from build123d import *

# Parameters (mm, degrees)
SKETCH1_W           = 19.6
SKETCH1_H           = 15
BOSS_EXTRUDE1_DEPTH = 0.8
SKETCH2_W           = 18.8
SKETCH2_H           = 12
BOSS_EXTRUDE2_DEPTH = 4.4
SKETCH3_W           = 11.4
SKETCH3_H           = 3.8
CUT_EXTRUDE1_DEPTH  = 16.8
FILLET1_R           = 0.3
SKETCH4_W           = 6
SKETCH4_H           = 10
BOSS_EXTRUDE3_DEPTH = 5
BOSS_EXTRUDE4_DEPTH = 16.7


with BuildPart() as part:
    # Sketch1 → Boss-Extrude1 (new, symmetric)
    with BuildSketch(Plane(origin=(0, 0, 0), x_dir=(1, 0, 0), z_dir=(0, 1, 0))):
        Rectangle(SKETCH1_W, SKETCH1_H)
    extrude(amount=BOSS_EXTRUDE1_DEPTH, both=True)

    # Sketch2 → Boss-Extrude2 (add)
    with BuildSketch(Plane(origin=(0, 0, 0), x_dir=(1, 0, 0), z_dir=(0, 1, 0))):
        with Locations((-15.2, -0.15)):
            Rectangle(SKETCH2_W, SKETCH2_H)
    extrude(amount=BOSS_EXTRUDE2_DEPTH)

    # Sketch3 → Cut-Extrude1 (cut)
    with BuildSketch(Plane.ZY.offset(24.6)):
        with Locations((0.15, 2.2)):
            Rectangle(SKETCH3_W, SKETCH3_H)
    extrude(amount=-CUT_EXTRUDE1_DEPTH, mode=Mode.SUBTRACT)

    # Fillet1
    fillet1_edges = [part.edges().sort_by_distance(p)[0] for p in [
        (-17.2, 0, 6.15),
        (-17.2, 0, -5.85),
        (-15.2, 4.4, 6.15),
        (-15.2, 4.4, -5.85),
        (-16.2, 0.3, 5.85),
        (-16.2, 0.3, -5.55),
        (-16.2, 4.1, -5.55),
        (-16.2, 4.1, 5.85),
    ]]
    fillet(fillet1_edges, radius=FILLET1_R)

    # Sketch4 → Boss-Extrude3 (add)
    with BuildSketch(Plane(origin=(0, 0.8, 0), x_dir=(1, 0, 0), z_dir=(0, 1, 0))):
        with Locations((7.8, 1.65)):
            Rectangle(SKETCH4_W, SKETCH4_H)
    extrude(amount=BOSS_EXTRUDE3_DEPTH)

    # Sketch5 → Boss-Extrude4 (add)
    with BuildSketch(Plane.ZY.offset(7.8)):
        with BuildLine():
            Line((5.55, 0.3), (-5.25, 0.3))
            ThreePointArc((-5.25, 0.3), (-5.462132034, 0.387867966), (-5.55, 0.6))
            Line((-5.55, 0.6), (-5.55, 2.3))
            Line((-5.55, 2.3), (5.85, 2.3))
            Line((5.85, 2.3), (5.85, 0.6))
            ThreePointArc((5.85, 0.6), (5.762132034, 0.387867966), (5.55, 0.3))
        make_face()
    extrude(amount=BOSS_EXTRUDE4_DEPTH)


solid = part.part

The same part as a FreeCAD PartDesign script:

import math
import FreeCAD as App
import Part
import Sketcher
from FreeCAD import Vector
Q = App.Units.Quantity


def edges_at(feature, points):
    """Names of the edges that pass closest to the given points."""
    edges = feature.Shape.Edges
    near = lambda p: min(range(len(edges)), key=lambda i: edges[i].distToShape(Part.Vertex(*p))[0])
    return sorted({f"Edge{near(p) + 1}" for p in points})


def add_polygon(sketch, points):
    """Adds a closed chain of lines whose ends are joined by coincident constraints."""
    first, n = sketch.GeometryCount, len(points)
    for a, b in zip(points, points[1:] + points[:1]):
        sketch.addGeometry(Part.LineSegment(App.Vector(*a, 0), App.Vector(*b, 0)), False)
    for i in range(n):
        sketch.addConstraint(Sketcher.Constraint("Coincident", first + i, 2, first + (i + 1) % n, 1))

doc = App.newDocument("Part")
body = doc.addObject("PartDesign::Body", "Body")

sketch1 = body.newObject("Sketcher::SketchObject", "Sketch")
sketch1.AttachmentSupport = (doc.getObject("XZ_Plane"), [""])
sketch1.MapMode = "FlatFace"
add_polygon(sketch1, [(-10, -8), (-10, 8), (10, 8), (10, -8)])
sketch1.addConstraint(Sketcher.Constraint("Vertical", 0))
sketch1.addConstraint(Sketcher.Constraint("Horizontal", 1))
sketch1.addConstraint(Sketcher.Constraint("Vertical", 2))
sketch1.addConstraint(Sketcher.Constraint("Horizontal", 3))
sketch1.addConstraint(Sketcher.Constraint("Symmetric", 0, 2, 2, 2, -1, 1))
sketch1.addConstraint(Sketcher.Constraint("DistanceY", 0, 1, 0, 2, Q("15 mm")))
sketch1.addConstraint(Sketcher.Constraint("DistanceX", 1, 1, 1, 2, Q("19.6 mm")))
pad1 = body.newObject("PartDesign::Pad", "Pad")
pad1.Profile = sketch1
pad1.Length = 1.6
pad1.Midplane = True

sketch2 = body.newObject("Sketcher::SketchObject", "Sketch001")
sketch2.AttachmentSupport = (doc.getObject("XZ_Plane"), [""])
sketch2.MapMode = "FlatFace"
add_polygon(sketch2, [(-25, -6), (-25, 6), (-6, 6), (-6, -6)])
sketch2.addConstraint(Sketcher.Constraint("Vertical", 0))
sketch2.addConstraint(Sketcher.Constraint("Horizontal", 1))
sketch2.addConstraint(Sketcher.Constraint("Vertical", 2))
sketch2.addConstraint(Sketcher.Constraint("Horizontal", 3))
sketch2.addConstraint(Sketcher.Constraint("DistanceY", 0, 1, 0, 2, Q("12 mm")))
sketch2.addConstraint(Sketcher.Constraint("DistanceX", 1, 1, 1, 2, Q("18.8 mm")))
sketch2.addConstraint(Sketcher.Constraint("DistanceX", 0, 2, -1, 1, Q("24.6 mm")))
sketch2.addConstraint(Sketcher.Constraint("DistanceY", -1, 1, 0, 2, Q("6.15 mm")))
pad2 = body.newObject("PartDesign::Pad", "Pad001")
pad2.Profile = sketch2
pad2.Length = 4.4
pad2.Reversed = True

sketch3 = body.newObject("Sketcher::SketchObject", "Sketch002")
sketch3.AttachmentSupport = (doc.getObject("YZ_Plane"), [""])
sketch3.MapMode = "FlatFace"
sketch3.AttachmentOffset = App.Placement(Vector(0, 0, -24.6), App.Rotation())
add_polygon(sketch3, [(4.1, -5.5), (0.3, -5.5), (0.3, 5.8), (4.1, 5.8)])
sketch3.addConstraint(Sketcher.Constraint("Horizontal", 0))
sketch3.addConstraint(Sketcher.Constraint("Vertical", 1))
sketch3.addConstraint(Sketcher.Constraint("Horizontal", 2))
sketch3.addConstraint(Sketcher.Constraint("Vertical", 3))
sketch3.addConstraint(Sketcher.Constraint("DistanceX", 0, 2, 0, 1, Q("3.8 mm")))
sketch3.addConstraint(Sketcher.Constraint("DistanceY", 1, 1, 1, 2, Q("11.4 mm")))
sketch3.addConstraint(Sketcher.Constraint("DistanceX", -1, 1, 0, 2, Q("0.3 mm")))
sketch3.addConstraint(Sketcher.Constraint("DistanceY", 0, 2, -1, 1, Q("5.55 mm")))
pocket1 = body.newObject("PartDesign::Pocket", "Pocket")
pocket1.Profile = sketch3
pocket1.Length = 16.8
pocket1.Reversed = True
doc.recompute()

fillet = body.newObject("PartDesign::Fillet", "Fillet")
fillet.Base = (pocket1, edges_at(pocket1, [
    (-17.2, 0, 6.15),
    (-17.2, 0, -5.85),
    (-15.2, 4.4, 6.15),
    (-15.2, 4.4, -5.85),
    (-16.2, 0.3, 5.85),
    (-16.2, 0.3, -5.55),
    (-16.2, 4.1, -5.55),
    (-16.2, 4.1, 5.85),
]))
fillet.Radius = 0.3

sketch4 = body.newObject("Sketcher::SketchObject", "Sketch003")
sketch4.AttachmentSupport = (doc.getObject("XZ_Plane"), [""])
sketch4.MapMode = "FlatFace"
sketch4.AttachmentOffset = App.Placement(Vector(0, 0, -0.8), App.Rotation())
add_polygon(sketch4, [(5, -7), (5, 3), (11, 3), (11, -7)])
sketch4.addConstraint(Sketcher.Constraint("Vertical", 0))
sketch4.addConstraint(Sketcher.Constraint("Horizontal", 1))
sketch4.addConstraint(Sketcher.Constraint("Vertical", 2))
sketch4.addConstraint(Sketcher.Constraint("Horizontal", 3))
sketch4.addConstraint(Sketcher.Constraint("DistanceX", 1, 1, 1, 2, Q("6 mm")))
sketch4.addConstraint(Sketcher.Constraint("DistanceY", 0, 1, 0, 2, Q("10 mm")))
sketch4.addConstraint(Sketcher.Constraint("DistanceX", -1, 1, 0, 2, Q("4.8 mm")))
sketch4.addConstraint(Sketcher.Constraint("DistanceY", -1, 1, 0, 2, Q("3.35 mm")))
pad3 = body.newObject("PartDesign::Pad", "Pad002")
pad3.Profile = sketch4
pad3.Length = 5
pad3.Reversed = True

sketch5 = body.newObject("Sketcher::SketchObject", "Sketch004")
sketch5.AttachmentSupport = (doc.getObject("YZ_Plane"), [""])
sketch5.MapMode = "FlatFace"
sketch5.AttachmentOffset = App.Placement(Vector(0, 0, -7.8), App.Rotation())
sketch5.addGeometry(Part.LineSegment(Vector(0.3, -5.25, 0), Vector(0.3, 5.55, 0)), False)
sketch5.addGeometry(Part.ArcOfCircle(Part.Circle(Vector(0.6, 5.55, 0), Vector(0, 0, 1), 0.3), math.radians(90), math.radians(180)), False)
sketch5.addGeometry(Part.LineSegment(Vector(0.6, 5.85, 0), Vector(2.3, 5.85, 0)), False)
sketch5.addGeometry(Part.LineSegment(Vector(2.3, 5.85, 0), Vector(2.3, -5.55, 0)), False)
sketch5.addGeometry(Part.LineSegment(Vector(2.3, -5.55, 0), Vector(0.6, -5.55, 0)), False)
sketch5.addGeometry(Part.ArcOfCircle(Part.Circle(Vector(0.6, -5.25, 0), Vector(0, 0, 1), 0.3), math.radians(-180), math.radians(-90)), False)
sketch5.addConstraint(Sketcher.Constraint("Tangent", 0, 2, 1, 2))
sketch5.addConstraint(Sketcher.Constraint("Tangent", 1, 1, 2, 1))
sketch5.addConstraint(Sketcher.Constraint("Coincident", 2, 2, 3, 1))
sketch5.addConstraint(Sketcher.Constraint("Coincident", 3, 2, 4, 1))
sketch5.addConstraint(Sketcher.Constraint("Tangent", 4, 2, 5, 2))
sketch5.addConstraint(Sketcher.Constraint("Tangent", 5, 1, 0, 1))
sketch5.addConstraint(Sketcher.Constraint("Vertical", 0))
sketch5.addConstraint(Sketcher.Constraint("Horizontal", 2))
sketch5.addConstraint(Sketcher.Constraint("Vertical", 3))
sketch5.addConstraint(Sketcher.Constraint("Horizontal", 4))
sketch5.addConstraint(Sketcher.Constraint("Equal", 1, 5))
sketch5.addConstraint(Sketcher.Constraint("Radius", 1, Q("0.3 mm")))
sketch5.addConstraint(Sketcher.Constraint("DistanceX", 2, 1, 2, 2, Q("1.7 mm")))
sketch5.addConstraint(Sketcher.Constraint("DistanceY", 0, 1, 0, 2, Q("10.8 mm")))
sketch5.addConstraint(Sketcher.Constraint("DistanceX", -1, 1, 1, 3, Q("0.6 mm")))
sketch5.addConstraint(Sketcher.Constraint("DistanceY", -1, 1, 1, 3, Q("5.55 mm")))
pad4 = body.newObject("PartDesign::Pad", "Pad003")
pad4.Profile = sketch5
pad4.Length = 16.7
pad4.Reversed = True

doc.recompute()
